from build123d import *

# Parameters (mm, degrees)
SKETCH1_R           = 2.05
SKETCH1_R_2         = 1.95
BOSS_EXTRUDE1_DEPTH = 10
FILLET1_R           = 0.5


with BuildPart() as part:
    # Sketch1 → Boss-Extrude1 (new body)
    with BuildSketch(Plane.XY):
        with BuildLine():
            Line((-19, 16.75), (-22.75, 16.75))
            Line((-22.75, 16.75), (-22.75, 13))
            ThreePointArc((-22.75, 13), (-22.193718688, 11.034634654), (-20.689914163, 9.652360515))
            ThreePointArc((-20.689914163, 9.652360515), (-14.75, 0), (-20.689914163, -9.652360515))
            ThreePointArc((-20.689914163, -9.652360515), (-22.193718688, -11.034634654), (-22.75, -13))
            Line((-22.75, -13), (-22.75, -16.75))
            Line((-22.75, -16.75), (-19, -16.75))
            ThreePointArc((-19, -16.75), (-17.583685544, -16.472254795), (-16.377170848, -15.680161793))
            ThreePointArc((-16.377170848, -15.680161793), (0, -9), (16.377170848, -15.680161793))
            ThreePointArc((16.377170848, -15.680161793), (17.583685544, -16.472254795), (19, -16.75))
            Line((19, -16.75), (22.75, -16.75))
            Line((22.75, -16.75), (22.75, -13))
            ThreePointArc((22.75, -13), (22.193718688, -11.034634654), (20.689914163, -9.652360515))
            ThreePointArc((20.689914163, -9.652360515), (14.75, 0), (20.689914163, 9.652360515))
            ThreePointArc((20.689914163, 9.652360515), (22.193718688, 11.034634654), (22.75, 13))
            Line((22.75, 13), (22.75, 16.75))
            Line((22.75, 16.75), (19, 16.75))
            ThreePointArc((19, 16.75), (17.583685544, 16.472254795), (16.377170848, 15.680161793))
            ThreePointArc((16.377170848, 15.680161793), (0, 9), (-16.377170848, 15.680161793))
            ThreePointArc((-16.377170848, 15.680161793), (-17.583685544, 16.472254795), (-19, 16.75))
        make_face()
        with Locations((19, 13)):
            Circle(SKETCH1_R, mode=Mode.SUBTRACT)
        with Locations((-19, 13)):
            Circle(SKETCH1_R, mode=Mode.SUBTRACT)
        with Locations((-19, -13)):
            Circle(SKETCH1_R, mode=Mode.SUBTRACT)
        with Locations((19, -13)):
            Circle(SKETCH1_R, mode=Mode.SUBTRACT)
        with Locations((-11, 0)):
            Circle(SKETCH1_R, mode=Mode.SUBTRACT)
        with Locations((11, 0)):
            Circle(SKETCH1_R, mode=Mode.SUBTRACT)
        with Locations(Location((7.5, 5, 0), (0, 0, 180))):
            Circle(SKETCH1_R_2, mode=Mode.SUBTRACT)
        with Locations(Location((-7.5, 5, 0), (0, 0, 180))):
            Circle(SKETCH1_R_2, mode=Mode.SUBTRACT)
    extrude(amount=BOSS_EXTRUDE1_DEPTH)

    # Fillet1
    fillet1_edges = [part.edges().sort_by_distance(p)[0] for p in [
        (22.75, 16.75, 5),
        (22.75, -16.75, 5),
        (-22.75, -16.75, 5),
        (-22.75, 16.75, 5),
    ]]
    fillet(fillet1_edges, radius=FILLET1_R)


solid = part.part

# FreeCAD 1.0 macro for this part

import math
import FreeCAD as App
import Part
import Sketcher

V = App.Vector
Q = App.Units.Quantity


def edges_at(feature, points):
    """Names of the edges that pass closest to the given points."""
    edges = feature.Shape.Edges
    near = lambda p: min(range(len(edges)), key=lambda i: edges[i].distToShape(Part.Vertex(*p))[0])
    return sorted({f"Edge{near(p) + 1}" for p in points})

doc = App.newDocument("Part")
body = doc.addObject("PartDesign::Body", "Body")

# Sketch on XY plane
sketch1 = doc.addObject("Sketcher::SketchObject", "Sketch")
body.addObject(sketch1)
sketch1.AttachmentSupport = (doc.XY_Plane, [""])
sketch1.MapMode = "FlatFace"
sketch1.addGeometry([
    Part.LineSegment(V(-19, 16.8, 0), V(-22.8, 16.8, 0)),  # 0
    Part.LineSegment(V(-22.8, 16.8, 0), V(-22.8, 13, 0)),  # 1
    Part.ArcOfCircle(Part.Circle(V(-19, 13, 0), V(0, 0, 1), 3.7), math.radians(180), math.radians(243)),  # 2
    Part.ArcOfCircle(Part.Circle(V(-25.6, 0, 0), V(0, 0, 1), 10.8), math.radians(-63), math.radians(63)),  # 3
    Part.ArcOfCircle(Part.Circle(V(-19, -13, 0), V(0, 0, 1), 3.7), math.radians(117), math.radians(180)),  # 4
    Part.LineSegment(V(-22.8, -13, 0), V(-22.8, -16.8, 0)),  # 5
    Part.LineSegment(V(-22.8, -16.8, 0), V(-19, -16.8, 0)),  # 6
    Part.ArcOfCircle(Part.Circle(V(-19, -13, 0), V(0, 0, 1), 3.7), math.radians(-90), math.radians(-46)),  # 7
    Part.ArcOfCircle(Part.Circle(V(0, -32.4, 0), V(0, 0, 1), 23.4), math.radians(46), math.radians(134)),  # 8
    Part.ArcOfCircle(Part.Circle(V(19, -13, 0), V(0, 0, 1), 3.7), math.radians(-134), math.radians(-90)),  # 9
    Part.LineSegment(V(19, -16.8, 0), V(22.8, -16.8, 0)),  # 10
    Part.LineSegment(V(22.8, -16.8, 0), V(22.8, -13, 0)),  # 11
    Part.ArcOfCircle(Part.Circle(V(19, -13, 0), V(0, 0, 1), 3.7), math.radians(0), math.radians(63)),  # 12
    Part.ArcOfCircle(Part.Circle(V(25.6, 0, 0), V(0, 0, 1), 10.8), math.radians(117), math.radians(243)),  # 13
    Part.ArcOfCircle(Part.Circle(V(19, 13, 0), V(0, 0, 1), 3.7), math.radians(-63), math.radians(0)),  # 14
    Part.LineSegment(V(22.8, 13, 0), V(22.8, 16.8, 0)),  # 15
    Part.LineSegment(V(22.8, 16.8, 0), V(19, 16.8, 0)),  # 16
    Part.ArcOfCircle(Part.Circle(V(19, 13, 0), V(0, 0, 1), 3.7), math.radians(90), math.radians(134)),  # 17
    Part.ArcOfCircle(Part.Circle(V(0, 32.4, 0), V(0, 0, 1), 23.4), math.radians(-134), math.radians(-46)),  # 18
    Part.ArcOfCircle(Part.Circle(V(-19, 13, 0), V(0, 0, 1), 3.7), math.radians(46), math.radians(90)),  # 19
    Part.Circle(V(-19, -13, 0), V(0, 0, 1), 2),  # 20
    Part.Circle(V(-11, 0, 0), V(0, 0, 1), 2),  # 21
    Part.Circle(V(19, -13, 0), V(0, 0, 1), 2),  # 22
    Part.Circle(V(11, 0, 0), V(0, 0, 1), 2),  # 23
    Part.Circle(V(-7.5, 5, 0), V(0, 0, 1), 1.9),  # 24
    Part.Circle(V(-19, 13, 0), V(0, 0, 1), 2),  # 25
    Part.Circle(V(7.5, 5, 0), V(0, 0, 1), 1.9),  # 26
    Part.Circle(V(19, 13, 0), V(0, 0, 1), 2),  # 27
], False)
sketch1.addConstraint([
    Sketcher.Constraint("Coincident", 0, 2, 1, 1),
    Sketcher.Constraint("Tangent", 1, 2, 2, 1),
    Sketcher.Constraint("Tangent", 2, 2, 3, 2),
    Sketcher.Constraint("Tangent", 3, 1, 4, 1),
    Sketcher.Constraint("Tangent", 4, 2, 5, 1),
    Sketcher.Constraint("Coincident", 5, 2, 6, 1),
    Sketcher.Constraint("Tangent", 6, 2, 7, 1),
    Sketcher.Constraint("Tangent", 7, 2, 8, 2),
    Sketcher.Constraint("Tangent", 8, 1, 9, 1),
    Sketcher.Constraint("Tangent", 9, 2, 10, 1),
    Sketcher.Constraint("Coincident", 10, 2, 11, 1),
    Sketcher.Constraint("Tangent", 11, 2, 12, 1),
    Sketcher.Constraint("Tangent", 12, 2, 13, 2),
    Sketcher.Constraint("Tangent", 13, 1, 14, 1),
    Sketcher.Constraint("Tangent", 14, 2, 15, 1),
    Sketcher.Constraint("Coincident", 15, 2, 16, 1),
    Sketcher.Constraint("Tangent", 16, 2, 17, 1),
    Sketcher.Constraint("Tangent", 17, 2, 18, 2),
    Sketcher.Constraint("Tangent", 18, 1, 19, 1),
    Sketcher.Constraint("Tangent", 19, 2, 0, 1),
    Sketcher.Constraint("Horizontal", 0),
    Sketcher.Constraint("Vertical", 1),
    Sketcher.Constraint("Vertical", 5),
    Sketcher.Constraint("Horizontal", 6),
    Sketcher.Constraint("Horizontal", 10),
    Sketcher.Constraint("Vertical", 11),
    Sketcher.Constraint("Vertical", 15),
    Sketcher.Constraint("Horizontal", 16),
    Sketcher.Constraint("Coincident", 7, 3, 4, 3),
    Sketcher.Constraint("Coincident", 12, 3, 9, 3),
    Sketcher.Constraint("Coincident", 17, 3, 14, 3),
    Sketcher.Constraint("Coincident", 19, 3, 2, 3),
    Sketcher.Constraint("Coincident", 20, 3, 4, 3),
    Sketcher.Constraint("Coincident", 22, 3, 9, 3),
    Sketcher.Constraint("Coincident", 25, 3, 2, 3),
    Sketcher.Constraint("Coincident", 27, 3, 14, 3),
    Sketcher.Constraint("Equal", 2, 4),
    Sketcher.Constraint("Equal", 4, 7),
    Sketcher.Constraint("Equal", 7, 9),
    Sketcher.Constraint("Equal", 9, 12),
    Sketcher.Constraint("Equal", 3, 13),
    Sketcher.Constraint("Equal", 12, 14),
    Sketcher.Constraint("Equal", 14, 17),
    Sketcher.Constraint("Equal", 8, 18),
    Sketcher.Constraint("Equal", 17, 19),
    Sketcher.Constraint("Equal", 20, 21),
    Sketcher.Constraint("Equal", 21, 22),
    Sketcher.Constraint("Equal", 22, 23),
    Sketcher.Constraint("Equal", 23, 25),
    Sketcher.Constraint("Equal", 24, 26),
    Sketcher.Constraint("Equal", 25, 27),
    Sketcher.Constraint("Symmetric", 2, 3, 9, 3, -1, 1),
    Sketcher.Constraint("Symmetric", 4, 3, 14, 3, -1, 1),
    Sketcher.Constraint("Symmetric", 21, 3, 23, 3, -1, 1),
    Sketcher.Constraint("Symmetric", 4, 3, 9, 3, -2),
    Sketcher.Constraint("Symmetric", 24, 3, 26, 3, -2),
    Sketcher.Constraint("PointOnObject", 21, 3, -1),
    Sketcher.Constraint("Diameter", 20, Q("4.1 mm")),
    Sketcher.Constraint("Diameter", 24, Q("3.9 mm")),
    Sketcher.Constraint("Radius", 2, Q("3.75 mm")),
    Sketcher.Constraint("DistanceX", 2, 3, -1, 1, Q("19 mm")),
    Sketcher.Constraint("DistanceY", -1, 1, 2, 3, Q("13 mm")),
    Sketcher.Constraint("DistanceX", 21, 3, -1, 1, Q("11 mm")),
    Sketcher.Constraint("DistanceY", -1, 1, 24, 3, Q("5 mm")),
    Sketcher.Constraint("DistanceX", 24, 3, 26, 3, Q("15 mm")),
    Sketcher.Constraint("Radius", 3, Q("10.8125 mm")),
    Sketcher.Constraint("Radius", 8, Q("23.415323 mm")),
])
pad1 = doc.addObject("PartDesign::Pad", "Pad")
body.addObject(pad1)
pad1.Profile = sketch1
pad1.Length = 10
doc.recompute()

fillet = doc.addObject("PartDesign::Fillet", "Fillet")
body.addObject(fillet)
fillet.Base = (pad1, edges_at(pad1, [
    (22.75, 16.75, 5),
    (22.75, -16.75, 5),
    (-22.75, -16.75, 5),
    (-22.75, 16.75, 5),
]))
fillet.Radius = 0.5

doc.recompute()
